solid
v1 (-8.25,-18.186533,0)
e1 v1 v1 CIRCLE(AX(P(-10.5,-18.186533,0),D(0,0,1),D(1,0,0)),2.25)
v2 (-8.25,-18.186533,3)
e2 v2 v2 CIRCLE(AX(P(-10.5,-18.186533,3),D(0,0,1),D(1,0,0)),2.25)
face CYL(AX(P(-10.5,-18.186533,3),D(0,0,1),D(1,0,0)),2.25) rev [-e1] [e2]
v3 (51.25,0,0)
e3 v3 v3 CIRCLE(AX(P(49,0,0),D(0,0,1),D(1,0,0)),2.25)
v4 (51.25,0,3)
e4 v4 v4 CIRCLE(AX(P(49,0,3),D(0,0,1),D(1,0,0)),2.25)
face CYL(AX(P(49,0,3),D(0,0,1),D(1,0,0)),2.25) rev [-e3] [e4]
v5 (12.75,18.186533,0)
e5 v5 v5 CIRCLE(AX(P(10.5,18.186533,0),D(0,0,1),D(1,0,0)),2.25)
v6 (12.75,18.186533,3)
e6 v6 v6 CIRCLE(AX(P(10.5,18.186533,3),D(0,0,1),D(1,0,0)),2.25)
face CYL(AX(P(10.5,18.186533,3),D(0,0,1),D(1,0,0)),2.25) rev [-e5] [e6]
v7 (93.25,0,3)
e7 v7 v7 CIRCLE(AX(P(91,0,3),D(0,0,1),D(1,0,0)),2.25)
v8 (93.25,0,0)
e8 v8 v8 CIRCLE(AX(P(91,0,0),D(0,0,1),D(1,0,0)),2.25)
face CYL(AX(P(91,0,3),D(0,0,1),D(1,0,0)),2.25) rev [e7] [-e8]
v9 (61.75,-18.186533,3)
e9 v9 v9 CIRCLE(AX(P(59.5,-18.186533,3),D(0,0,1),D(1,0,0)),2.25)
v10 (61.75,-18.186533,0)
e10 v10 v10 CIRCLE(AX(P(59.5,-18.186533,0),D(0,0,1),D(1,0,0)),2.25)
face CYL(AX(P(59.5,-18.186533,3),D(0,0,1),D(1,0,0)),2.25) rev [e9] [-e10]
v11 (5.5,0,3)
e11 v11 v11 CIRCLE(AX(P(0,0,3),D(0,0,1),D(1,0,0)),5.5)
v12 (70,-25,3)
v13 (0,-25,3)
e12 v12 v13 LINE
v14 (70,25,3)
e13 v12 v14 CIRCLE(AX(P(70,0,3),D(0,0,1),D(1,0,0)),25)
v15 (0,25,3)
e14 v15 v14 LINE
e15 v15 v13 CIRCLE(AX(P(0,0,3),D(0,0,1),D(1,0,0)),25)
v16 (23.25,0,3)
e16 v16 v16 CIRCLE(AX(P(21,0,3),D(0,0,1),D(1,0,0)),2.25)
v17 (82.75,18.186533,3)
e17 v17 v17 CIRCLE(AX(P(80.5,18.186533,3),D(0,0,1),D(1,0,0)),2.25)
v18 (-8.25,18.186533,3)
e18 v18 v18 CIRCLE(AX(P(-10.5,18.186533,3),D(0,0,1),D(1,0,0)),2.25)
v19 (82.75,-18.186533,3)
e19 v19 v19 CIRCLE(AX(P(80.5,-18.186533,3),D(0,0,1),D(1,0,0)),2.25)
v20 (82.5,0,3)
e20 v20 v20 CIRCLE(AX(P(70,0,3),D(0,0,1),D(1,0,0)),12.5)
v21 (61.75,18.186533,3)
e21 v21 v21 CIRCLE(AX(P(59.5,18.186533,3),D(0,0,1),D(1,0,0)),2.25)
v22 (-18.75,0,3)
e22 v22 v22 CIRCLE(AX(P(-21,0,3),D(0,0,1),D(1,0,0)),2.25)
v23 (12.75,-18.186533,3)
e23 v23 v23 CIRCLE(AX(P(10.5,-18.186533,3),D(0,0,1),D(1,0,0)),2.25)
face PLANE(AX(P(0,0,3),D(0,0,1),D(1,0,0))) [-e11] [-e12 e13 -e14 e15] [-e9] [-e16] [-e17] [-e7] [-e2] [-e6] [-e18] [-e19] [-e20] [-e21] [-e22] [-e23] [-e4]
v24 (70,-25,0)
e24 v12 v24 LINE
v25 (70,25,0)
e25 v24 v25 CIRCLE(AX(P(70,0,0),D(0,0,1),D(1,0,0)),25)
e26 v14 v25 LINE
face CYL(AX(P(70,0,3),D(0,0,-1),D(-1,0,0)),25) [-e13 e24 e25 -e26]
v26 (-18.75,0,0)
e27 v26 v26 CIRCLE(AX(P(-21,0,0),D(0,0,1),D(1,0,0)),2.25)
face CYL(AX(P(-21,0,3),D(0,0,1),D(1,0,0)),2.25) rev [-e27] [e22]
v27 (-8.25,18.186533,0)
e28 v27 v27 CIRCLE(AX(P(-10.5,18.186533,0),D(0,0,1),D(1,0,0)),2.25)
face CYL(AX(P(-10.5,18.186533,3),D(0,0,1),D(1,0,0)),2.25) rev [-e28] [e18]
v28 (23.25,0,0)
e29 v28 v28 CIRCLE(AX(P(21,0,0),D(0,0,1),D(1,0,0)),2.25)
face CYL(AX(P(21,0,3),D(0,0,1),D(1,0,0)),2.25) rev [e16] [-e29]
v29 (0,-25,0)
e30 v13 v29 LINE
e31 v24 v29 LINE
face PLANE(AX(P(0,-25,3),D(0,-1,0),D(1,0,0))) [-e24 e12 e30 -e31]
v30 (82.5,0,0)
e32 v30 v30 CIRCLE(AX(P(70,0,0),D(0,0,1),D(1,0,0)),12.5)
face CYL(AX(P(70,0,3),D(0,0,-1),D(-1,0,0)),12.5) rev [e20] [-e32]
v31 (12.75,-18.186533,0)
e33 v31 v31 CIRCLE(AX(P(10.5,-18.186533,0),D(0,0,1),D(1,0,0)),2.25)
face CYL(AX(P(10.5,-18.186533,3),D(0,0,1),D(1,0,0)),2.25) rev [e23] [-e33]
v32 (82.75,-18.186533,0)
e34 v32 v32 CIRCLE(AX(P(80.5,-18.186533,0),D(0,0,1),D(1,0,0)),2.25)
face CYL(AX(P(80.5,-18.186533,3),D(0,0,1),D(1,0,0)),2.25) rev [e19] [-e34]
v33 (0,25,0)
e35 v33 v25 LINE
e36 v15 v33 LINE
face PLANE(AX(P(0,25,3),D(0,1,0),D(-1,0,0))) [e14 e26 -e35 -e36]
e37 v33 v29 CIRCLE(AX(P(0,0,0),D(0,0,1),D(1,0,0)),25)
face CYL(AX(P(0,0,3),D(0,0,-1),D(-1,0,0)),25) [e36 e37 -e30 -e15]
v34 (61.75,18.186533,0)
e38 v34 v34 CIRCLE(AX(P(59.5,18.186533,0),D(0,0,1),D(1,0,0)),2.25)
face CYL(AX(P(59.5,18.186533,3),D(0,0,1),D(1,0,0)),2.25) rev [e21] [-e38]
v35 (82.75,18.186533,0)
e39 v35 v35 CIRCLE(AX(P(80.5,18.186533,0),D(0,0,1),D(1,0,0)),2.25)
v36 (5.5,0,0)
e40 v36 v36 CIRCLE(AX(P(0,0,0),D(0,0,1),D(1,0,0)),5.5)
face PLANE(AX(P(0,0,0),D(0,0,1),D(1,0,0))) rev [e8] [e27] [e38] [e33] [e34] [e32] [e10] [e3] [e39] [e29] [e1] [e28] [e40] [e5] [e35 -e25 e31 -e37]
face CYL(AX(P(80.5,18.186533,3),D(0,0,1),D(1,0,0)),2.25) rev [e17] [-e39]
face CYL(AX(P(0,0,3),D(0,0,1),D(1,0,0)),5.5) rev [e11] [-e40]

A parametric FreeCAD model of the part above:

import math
import FreeCAD as App
import Part
import Sketcher
from FreeCAD import Vector
Q = App.Units.Quantity

doc = App.newDocument("Part")
params = doc.addObject("Spreadsheet::Sheet", "Params")
for row, (alias, value) in enumerate([
    ("sketch1_diameter", "25 mm"),
    ("sketch1_radius", "25 mm"),
    ("sketch1_width", "70 mm"),
    ("pad1_length", "3 mm"),
    ("sketch2_diameter", "4.5 mm"),
    ("hole_diameter", "4.5 mm"),
    ("sketch3_diameter", "11 mm"),
    ("hole2_diameter", "11 mm"),
], start=1):
    params.set(f"A{row}", alias)
    params.set(f"B{row}", "=" + value)
    params.setAlias(f"B{row}", alias)

body = doc.addObject("PartDesign::Body", "Body")

# Sketch on XY plane
sketch1 = body.newObject("Sketcher::SketchObject", "Sketch")
sketch1.AttachmentSupport = (doc.getObject("XY_Plane"), [""])
sketch1.MapMode = "FlatFace"
sketch1.addGeometry([
    Part.LineSegment(Vector(70, 25, 0), Vector(0, 25, 0)),  # 0
    Part.ArcOfCircle(Part.Circle(Vector(0, 0, 0), Vector(0, 0, 1), 25), math.radians(90), math.radians(270)),  # 1
    Part.LineSegment(Vector(0, -25, 0), Vector(70, -25, 0)),  # 2
    Part.ArcOfCircle(Part.Circle(Vector(70, 0, 0), Vector(0, 0, 1), 25), math.radians(-90), math.radians(90)),  # 3
    Part.Circle(Vector(70, 0, 0), Vector(0, 0, 1), 12),  # 4
], False)
sketch1.addConstraint([
    Sketcher.Constraint("Tangent", 0, 2, 1, 1),
    Sketcher.Constraint("Tangent", 1, 2, 2, 1),
    Sketcher.Constraint("Tangent", 2, 2, 3, 1),
    Sketcher.Constraint("Tangent", 3, 2, 0, 1),
    Sketcher.Constraint("Horizontal", 0),
    Sketcher.Constraint("Horizontal", 2),
    Sketcher.Constraint("Coincident", 1, 3, -1, 1),
    Sketcher.Constraint("Coincident", 4, 3, 3, 3),
    Sketcher.Constraint("Diameter", 4, Q("25 mm")),
    Sketcher.Constraint("Radius", 1, Q("25 mm")),
    Sketcher.Constraint("DistanceX", 0, 2, 0, 1, Q("70 mm")),
])
sketch1.setExpression("Constraints[8]", "Params.sketch1_diameter")
sketch1.setExpression("Constraints[9]", "Params.sketch1_radius")
sketch1.setExpression("Constraints[10]", "Params.sketch1_width")
pad1 = body.newObject("PartDesign::Pad", "Pad")
pad1.Profile = sketch1
pad1.setExpression("Length", "Params.pad1_length")

# Sketch on XY plane
sketch2 = body.newObject("Sketcher::SketchObject", "Sketch001")
sketch2.AttachmentSupport = (doc.getObject("XY_Plane"), [""])
sketch2.MapMode = "FlatFace"
sketch2.AttachmentOffset = App.Placement(Vector(0, 0, 3), App.Rotation())
sketch2.addGeometry([
    Part.Circle(Vector(-21, 0, 0), Vector(0, 0, 1), 2.2),  # 0
    Part.Circle(Vector(91, 0, 0), Vector(0, 0, 1), 2.2),  # 1
    Part.Circle(Vector(-10.5, 18.2, 0), Vector(0, 0, 1), 2.2),  # 2
    Part.Circle(Vector(10.5, 18.2, 0), Vector(0, 0, 1), 2.2),  # 3
    Part.Circle(Vector(21, 0, 0), Vector(0, 0, 1), 2.2),  # 4
    Part.Circle(Vector(10.5, -18.2, 0), Vector(0, 0, 1), 2.2),  # 5
    Part.Circle(Vector(-10.5, -18.2, 0), Vector(0, 0, 1), 2.2),  # 6
    Part.Circle(Vector(80.5, -18.2, 0), Vector(0, 0, 1), 2.2),  # 7
    Part.Circle(Vector(59.5, -18.2, 0), Vector(0, 0, 1), 2.2),  # 8
    Part.Circle(Vector(49, 0, 0), Vector(0, 0, 1), 2.2),  # 9
    Part.Circle(Vector(59.5, 18.2, 0), Vector(0, 0, 1), 2.2),  # 10
    Part.Circle(Vector(80.5, 18.2, 0), Vector(0, 0, 1), 2.2),  # 11
], False)
sketch2.addConstraint([
    Sketcher.Constraint("Equal", 0, 1),
    Sketcher.Constraint("Equal", 1, 2),
    Sketcher.Constraint("Equal", 2, 3),
    Sketcher.Constraint("Equal", 3, 4),
    Sketcher.Constraint("Equal", 4, 5),
    Sketcher.Constraint("Equal", 5, 6),
    Sketcher.Constraint("Equal", 6, 7),
    Sketcher.Constraint("Equal", 7, 8),
    Sketcher.Constraint("Equal", 8, 9),
    Sketcher.Constraint("Equal", 9, 10),
    Sketcher.Constraint("Equal", 10, 11),
    Sketcher.Constraint("Symmetric", 0, 3, 4, 3, -1, 1),
    Sketcher.Constraint("Symmetric", 2, 3, 5, 3, -1, 1),
    Sketcher.Constraint("Symmetric", 3, 3, 6, 3, -1, 1),
    Sketcher.Constraint("Symmetric", 2, 3, 3, 3, -2),
    Sketcher.Constraint("Symmetric", 8, 3, 10, 3, -1),
    Sketcher.Constraint("Symmetric", 7, 3, 11, 3, -1),
    Sketcher.Constraint("PointOnObject", 0, 3, -1),
    Sketcher.Constraint("PointOnObject", 1, 3, -1),
    Sketcher.Constraint("PointOnObject", 9, 3, -1),
    Sketcher.Constraint("Horizontal", 6, 3, 7, 3),
    Sketcher.Constraint("Horizontal", 7, 3, 8, 3),
    Sketcher.Constraint("Diameter", 0, Q("4.5 mm")),
    Sketcher.Constraint("DistanceX", 0, 3, -1, 1, Q("21 mm")),
    Sketcher.Constraint("DistanceX", -1, 1, 1, 3, Q("91 mm")),
    Sketcher.Constraint("DistanceX", -1, 1, 9, 3, Q("49 mm")),
    Sketcher.Constraint("DistanceX", 2, 3, 3, 3, Q("21 mm")),
    Sketcher.Constraint("DistanceX", 5, 3, 7, 3, Q("70 mm")),
    Sketcher.Constraint("DistanceX", 8, 3, 7, 3, Q("21 mm")),
    Sketcher.Constraint("DistanceY", -1, 1, 2, 3, Q("18.186533 mm")),
])
sketch2.setExpression("Constraints[22]", "Params.sketch2_diameter")
doc.recompute()
hole = body.newObject("PartDesign::Hole", "Hole")
hole.Profile = sketch2
hole.ThreadType = "None"
hole.setExpression("Diameter", "Params.hole_diameter")
hole.DepthType = "ThroughAll"

# Sketch on XY plane
sketch3 = body.newObject("Sketcher::SketchObject", "Sketch002")
sketch3.AttachmentSupport = (doc.getObject("XY_Plane"), [""])
sketch3.MapMode = "FlatFace"
sketch3.AttachmentOffset = App.Placement(Vector(0, 0, 3), App.Rotation())
sketch3.addGeometry(Part.Circle(Vector(0, 0, 0), Vector(0, 0, 1), 6), False)
sketch3.addConstraint([
    Sketcher.Constraint("Coincident", 0, 3, -1, 1),
    Sketcher.Constraint("Diameter", 0, Q("11 mm")),
])
sketch3.setExpression("Constraints[1]", "Params.sketch3_diameter")
doc.recompute()
hole2 = body.newObject("PartDesign::Hole", "Hole001")
hole2.Profile = sketch3
hole2.ThreadType = "None"
hole2.setExpression("Diameter", "Params.hole2_diameter")
hole2.DepthType = "ThroughAll"

doc.recompute()
